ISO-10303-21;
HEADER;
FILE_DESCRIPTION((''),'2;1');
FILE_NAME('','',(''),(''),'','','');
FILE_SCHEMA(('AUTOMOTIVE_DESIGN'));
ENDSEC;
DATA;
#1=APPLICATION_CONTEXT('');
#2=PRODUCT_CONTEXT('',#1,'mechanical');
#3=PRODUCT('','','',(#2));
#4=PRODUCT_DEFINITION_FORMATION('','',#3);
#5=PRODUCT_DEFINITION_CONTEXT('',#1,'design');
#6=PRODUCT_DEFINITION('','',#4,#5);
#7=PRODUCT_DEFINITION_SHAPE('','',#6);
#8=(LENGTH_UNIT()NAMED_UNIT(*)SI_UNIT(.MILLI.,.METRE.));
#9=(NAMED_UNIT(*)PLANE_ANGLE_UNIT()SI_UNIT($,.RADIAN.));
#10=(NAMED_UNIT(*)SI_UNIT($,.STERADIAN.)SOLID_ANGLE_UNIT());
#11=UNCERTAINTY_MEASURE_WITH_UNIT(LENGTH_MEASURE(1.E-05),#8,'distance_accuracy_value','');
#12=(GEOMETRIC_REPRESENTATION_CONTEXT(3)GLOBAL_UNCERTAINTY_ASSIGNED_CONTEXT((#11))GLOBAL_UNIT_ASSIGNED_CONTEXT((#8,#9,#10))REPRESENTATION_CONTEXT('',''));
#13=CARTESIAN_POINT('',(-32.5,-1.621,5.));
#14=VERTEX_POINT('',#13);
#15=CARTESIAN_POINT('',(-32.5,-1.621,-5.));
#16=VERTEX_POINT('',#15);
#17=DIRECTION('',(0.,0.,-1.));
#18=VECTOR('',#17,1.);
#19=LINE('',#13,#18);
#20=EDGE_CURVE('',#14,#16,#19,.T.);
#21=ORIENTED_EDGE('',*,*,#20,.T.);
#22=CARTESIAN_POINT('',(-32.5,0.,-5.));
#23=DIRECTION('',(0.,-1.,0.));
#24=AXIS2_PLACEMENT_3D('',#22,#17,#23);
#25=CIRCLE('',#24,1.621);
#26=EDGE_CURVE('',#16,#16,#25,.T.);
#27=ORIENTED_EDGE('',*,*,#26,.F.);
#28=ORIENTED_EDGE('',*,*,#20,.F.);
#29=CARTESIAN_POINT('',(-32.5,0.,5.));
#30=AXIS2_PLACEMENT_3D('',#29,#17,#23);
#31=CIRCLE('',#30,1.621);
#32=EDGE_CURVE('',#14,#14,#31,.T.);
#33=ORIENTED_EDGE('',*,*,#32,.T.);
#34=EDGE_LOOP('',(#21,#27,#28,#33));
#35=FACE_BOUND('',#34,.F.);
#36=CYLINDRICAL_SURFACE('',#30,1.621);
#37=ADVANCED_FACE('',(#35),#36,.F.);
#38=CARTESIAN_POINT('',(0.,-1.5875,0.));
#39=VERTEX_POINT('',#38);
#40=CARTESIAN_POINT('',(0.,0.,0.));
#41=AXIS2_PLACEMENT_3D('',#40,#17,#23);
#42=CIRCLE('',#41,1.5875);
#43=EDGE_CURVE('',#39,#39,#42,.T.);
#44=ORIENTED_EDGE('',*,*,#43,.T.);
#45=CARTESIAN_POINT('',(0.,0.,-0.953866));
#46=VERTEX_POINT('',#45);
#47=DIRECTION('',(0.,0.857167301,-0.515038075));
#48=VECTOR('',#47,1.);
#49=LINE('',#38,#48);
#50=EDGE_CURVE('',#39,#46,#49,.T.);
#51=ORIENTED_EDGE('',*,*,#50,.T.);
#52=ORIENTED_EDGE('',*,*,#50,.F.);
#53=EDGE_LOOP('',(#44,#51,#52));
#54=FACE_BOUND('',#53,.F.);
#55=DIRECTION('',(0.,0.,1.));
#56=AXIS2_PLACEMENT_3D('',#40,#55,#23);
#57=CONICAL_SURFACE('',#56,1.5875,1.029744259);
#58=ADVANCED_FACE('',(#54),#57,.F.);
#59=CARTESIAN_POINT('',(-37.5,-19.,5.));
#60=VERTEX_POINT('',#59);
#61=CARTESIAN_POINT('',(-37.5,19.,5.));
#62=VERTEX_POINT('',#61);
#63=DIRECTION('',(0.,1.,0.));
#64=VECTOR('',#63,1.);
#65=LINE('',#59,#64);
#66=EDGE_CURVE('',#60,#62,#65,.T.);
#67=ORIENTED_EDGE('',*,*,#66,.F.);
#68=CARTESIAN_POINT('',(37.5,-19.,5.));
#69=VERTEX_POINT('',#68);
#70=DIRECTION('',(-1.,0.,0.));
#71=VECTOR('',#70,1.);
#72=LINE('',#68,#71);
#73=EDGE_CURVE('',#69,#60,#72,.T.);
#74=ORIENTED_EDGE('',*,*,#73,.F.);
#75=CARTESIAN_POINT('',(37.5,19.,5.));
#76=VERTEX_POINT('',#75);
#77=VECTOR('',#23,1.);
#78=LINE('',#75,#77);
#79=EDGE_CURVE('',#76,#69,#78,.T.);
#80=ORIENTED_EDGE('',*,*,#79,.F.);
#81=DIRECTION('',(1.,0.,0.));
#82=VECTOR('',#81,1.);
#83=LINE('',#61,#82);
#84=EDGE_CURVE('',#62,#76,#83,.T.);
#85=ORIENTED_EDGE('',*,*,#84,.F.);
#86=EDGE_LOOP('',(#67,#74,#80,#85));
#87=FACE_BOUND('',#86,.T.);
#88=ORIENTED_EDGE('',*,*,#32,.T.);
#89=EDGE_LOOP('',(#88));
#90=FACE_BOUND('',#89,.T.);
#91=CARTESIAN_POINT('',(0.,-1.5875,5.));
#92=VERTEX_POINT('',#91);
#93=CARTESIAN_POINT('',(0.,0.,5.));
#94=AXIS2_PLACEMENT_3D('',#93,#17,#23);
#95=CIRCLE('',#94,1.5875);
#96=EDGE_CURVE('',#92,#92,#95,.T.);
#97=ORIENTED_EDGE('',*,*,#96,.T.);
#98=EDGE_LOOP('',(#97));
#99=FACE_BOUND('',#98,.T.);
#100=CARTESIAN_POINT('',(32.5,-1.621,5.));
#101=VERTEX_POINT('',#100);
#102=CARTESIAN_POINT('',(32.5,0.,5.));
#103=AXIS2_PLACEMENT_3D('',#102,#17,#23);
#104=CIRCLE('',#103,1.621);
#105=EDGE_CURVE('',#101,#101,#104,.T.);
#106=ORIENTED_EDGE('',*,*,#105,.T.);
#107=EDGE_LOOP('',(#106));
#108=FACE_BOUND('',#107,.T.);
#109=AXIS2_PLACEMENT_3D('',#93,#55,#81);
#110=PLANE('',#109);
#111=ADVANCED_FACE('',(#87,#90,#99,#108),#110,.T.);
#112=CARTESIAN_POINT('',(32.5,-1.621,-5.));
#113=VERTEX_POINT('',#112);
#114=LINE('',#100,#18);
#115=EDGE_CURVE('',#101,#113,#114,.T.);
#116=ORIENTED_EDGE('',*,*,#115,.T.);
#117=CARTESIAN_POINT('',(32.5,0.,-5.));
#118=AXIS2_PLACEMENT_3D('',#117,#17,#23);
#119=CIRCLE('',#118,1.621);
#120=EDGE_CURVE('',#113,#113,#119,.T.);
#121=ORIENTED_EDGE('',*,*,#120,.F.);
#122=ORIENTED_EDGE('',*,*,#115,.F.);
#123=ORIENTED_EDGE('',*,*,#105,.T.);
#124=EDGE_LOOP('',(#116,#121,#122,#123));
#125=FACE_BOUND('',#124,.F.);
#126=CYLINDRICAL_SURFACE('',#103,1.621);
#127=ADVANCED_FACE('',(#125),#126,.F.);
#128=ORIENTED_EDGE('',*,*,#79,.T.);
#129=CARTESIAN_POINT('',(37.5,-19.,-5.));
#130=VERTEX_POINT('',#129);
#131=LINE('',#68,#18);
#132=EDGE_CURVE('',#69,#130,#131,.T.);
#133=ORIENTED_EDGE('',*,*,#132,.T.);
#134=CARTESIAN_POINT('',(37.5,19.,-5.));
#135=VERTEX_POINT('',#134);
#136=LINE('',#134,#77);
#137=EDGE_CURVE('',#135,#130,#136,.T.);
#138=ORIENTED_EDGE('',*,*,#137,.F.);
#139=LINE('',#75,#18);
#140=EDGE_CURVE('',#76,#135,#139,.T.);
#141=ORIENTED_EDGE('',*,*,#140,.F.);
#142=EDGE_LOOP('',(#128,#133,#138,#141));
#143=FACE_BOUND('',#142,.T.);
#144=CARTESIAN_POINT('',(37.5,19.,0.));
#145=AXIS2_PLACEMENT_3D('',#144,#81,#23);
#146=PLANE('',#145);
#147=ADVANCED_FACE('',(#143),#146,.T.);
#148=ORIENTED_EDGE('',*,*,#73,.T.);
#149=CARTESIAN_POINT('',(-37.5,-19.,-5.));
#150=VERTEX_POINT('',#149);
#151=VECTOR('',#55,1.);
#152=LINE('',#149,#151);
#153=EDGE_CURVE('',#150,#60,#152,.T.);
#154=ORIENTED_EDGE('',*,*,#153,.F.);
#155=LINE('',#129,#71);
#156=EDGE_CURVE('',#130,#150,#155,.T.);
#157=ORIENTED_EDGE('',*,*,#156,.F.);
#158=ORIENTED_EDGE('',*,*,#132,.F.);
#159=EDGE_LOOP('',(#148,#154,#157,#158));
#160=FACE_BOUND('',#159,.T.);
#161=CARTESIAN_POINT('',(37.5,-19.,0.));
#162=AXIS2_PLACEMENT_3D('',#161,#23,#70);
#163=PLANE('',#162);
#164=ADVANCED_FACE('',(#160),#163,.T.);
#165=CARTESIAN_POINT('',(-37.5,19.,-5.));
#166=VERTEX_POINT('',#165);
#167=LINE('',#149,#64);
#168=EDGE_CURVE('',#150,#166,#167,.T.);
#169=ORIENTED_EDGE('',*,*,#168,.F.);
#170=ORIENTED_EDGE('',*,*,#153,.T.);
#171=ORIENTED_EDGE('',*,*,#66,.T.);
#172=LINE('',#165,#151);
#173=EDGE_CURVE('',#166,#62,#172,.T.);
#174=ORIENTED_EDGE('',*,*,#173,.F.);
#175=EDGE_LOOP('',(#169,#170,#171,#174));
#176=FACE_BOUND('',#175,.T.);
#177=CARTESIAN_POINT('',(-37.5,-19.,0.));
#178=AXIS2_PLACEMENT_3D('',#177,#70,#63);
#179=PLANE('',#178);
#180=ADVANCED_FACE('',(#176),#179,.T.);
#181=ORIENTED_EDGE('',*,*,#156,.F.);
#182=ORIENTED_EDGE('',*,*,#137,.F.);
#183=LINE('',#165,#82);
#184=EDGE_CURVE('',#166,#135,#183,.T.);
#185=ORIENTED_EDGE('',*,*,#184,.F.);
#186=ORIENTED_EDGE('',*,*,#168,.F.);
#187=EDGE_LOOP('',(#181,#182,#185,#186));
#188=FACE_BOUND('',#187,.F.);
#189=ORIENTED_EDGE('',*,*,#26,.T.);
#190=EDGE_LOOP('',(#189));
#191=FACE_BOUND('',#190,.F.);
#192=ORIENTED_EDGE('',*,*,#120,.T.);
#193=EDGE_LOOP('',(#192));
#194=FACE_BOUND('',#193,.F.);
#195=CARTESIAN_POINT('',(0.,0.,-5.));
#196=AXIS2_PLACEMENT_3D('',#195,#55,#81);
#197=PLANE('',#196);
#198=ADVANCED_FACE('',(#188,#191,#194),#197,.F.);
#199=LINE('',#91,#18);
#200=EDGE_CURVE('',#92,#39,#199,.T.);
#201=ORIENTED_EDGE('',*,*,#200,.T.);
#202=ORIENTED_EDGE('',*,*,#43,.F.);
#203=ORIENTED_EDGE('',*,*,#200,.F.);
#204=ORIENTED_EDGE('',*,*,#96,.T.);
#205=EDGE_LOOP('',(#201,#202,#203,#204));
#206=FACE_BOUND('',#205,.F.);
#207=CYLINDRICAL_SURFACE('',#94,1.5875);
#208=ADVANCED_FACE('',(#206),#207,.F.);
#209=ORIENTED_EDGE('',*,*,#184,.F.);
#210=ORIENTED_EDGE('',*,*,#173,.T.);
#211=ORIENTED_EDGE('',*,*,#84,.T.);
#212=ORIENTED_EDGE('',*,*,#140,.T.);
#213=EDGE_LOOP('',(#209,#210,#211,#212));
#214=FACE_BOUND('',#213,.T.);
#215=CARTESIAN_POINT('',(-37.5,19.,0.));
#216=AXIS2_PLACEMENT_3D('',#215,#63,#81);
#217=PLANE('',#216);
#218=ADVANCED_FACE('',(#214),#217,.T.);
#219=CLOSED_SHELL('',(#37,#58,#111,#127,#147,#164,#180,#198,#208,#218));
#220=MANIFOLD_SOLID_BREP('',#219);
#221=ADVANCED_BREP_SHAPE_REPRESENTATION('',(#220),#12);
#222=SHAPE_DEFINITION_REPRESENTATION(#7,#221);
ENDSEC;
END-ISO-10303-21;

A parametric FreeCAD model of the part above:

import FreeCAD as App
import Part
import Sketcher
Q = App.Units.Quantity

doc = App.newDocument("Part")
body = doc.addObject("PartDesign::Body", "Body")

sketch1 = body.newObject("Sketcher::SketchObject", "Sketch")
sketch1.AttachmentSupport = (doc.getObject("XY_Plane"), [""])
sketch1.MapMode = "FlatFace"
sketch1.addGeometry(Part.LineSegment(App.Vector(38, 19, 0), App.Vector(-38, 19, 0)), False)
sketch1.addGeometry(Part.LineSegment(App.Vector(-38, 19, 0), App.Vector(-38, -19, 0)), False)
sketch1.addGeometry(Part.LineSegment(App.Vector(-38, -19, 0), App.Vector(38, -19, 0)), False)
sketch1.addGeometry(Part.LineSegment(App.Vector(38, -19, 0), App.Vector(38, 19, 0)), False)
sketch1.addConstraint(Sketcher.Constraint("Coincident", 0, 2, 1, 1))
sketch1.addConstraint(Sketcher.Constraint("Coincident", 1, 2, 2, 1))
sketch1.addConstraint(Sketcher.Constraint("Coincident", 2, 2, 3, 1))
sketch1.addConstraint(Sketcher.Constraint("Coincident", 3, 2, 0, 1))
sketch1.addConstraint(Sketcher.Constraint("Horizontal", 0))
sketch1.addConstraint(Sketcher.Constraint("Vertical", 1))
sketch1.addConstraint(Sketcher.Constraint("Horizontal", 2))
sketch1.addConstraint(Sketcher.Constraint("Vertical", 3))
sketch1.addConstraint(Sketcher.Constraint("Symmetric", 0, 2, 2, 2, -1, 1))
sketch1.addConstraint(Sketcher.Constraint("DistanceX", 0, 2, 0, 1, Q("75 mm")))
sketch1.addConstraint(Sketcher.Constraint("DistanceY", 1, 2, 1, 1, Q("38 mm")))
pad1 = body.newObject("PartDesign::Pad", "Pad")
pad1.Profile = sketch1
pad1.Length = 10
pad1.Midplane = True

sketch2 = body.newObject("Sketcher::SketchObject", "Sketch001")
sketch2.AttachmentSupport = (doc.getObject("XY_Plane"), [""])
sketch2.MapMode = "FlatFace"
sketch2.AttachmentOffset = App.Placement(App.Vector(0, 0, 5), App.Rotation())
sketch2.addGeometry(Part.Circle(App.Vector(0, 0, 0), App.Vector(0, 0, 1), 1.6), False)
sketch2.addConstraint(Sketcher.Constraint("Coincident", 0, 3, -1, 1))
sketch2.addConstraint(Sketcher.Constraint("Diameter", 0, Q("3.175 mm")))
doc.recompute()
hole = body.newObject("PartDesign::Hole", "Hole")
hole.Profile = sketch2
hole.ThreadType = "None"
hole.Diameter = 3.175
hole.DepthType = "Dimension"
hole.Depth = 5
hole.DrillPoint = "Angled"
hole.DrillPointAngle = 118

sketch3 = body.newObject("Sketcher::SketchObject", "Sketch002")
sketch3.AttachmentSupport = (doc.getObject("XY_Plane"), [""])
sketch3.MapMode = "FlatFace"
sketch3.AttachmentOffset = App.Placement(App.Vector(0, 0, 5), App.Rotation())
sketch3.addGeometry(Part.Circle(App.Vector(-32.5, 0, 0), App.Vector(0, 0, 1), 1.6), False)
sketch3.addGeometry(Part.Circle(App.Vector(32.5, 0, 0), App.Vector(0, 0, 1), 1.6), False)
sketch3.addConstraint(Sketcher.Constraint("Equal", 0, 1))
sketch3.addConstraint(Sketcher.Constraint("Symmetric", 0, 3, 1, 3, -1, 1))
sketch3.addConstraint(Sketcher.Constraint("PointOnObject", 0, 3, -1))
sketch3.addConstraint(Sketcher.Constraint("Diameter", 0, Q("3.242 mm")))
sketch3.addConstraint(Sketcher.Constraint("DistanceX", 0, 3, 1, 3, Q("65 mm")))
doc.recompute()
hole2 = body.newObject("PartDesign::Hole", "Hole001")
hole2.Profile = sketch3
hole2.ThreadType = "None"
hole2.Diameter = 3.242
hole2.DepthType = "ThroughAll"

doc.recompute()
